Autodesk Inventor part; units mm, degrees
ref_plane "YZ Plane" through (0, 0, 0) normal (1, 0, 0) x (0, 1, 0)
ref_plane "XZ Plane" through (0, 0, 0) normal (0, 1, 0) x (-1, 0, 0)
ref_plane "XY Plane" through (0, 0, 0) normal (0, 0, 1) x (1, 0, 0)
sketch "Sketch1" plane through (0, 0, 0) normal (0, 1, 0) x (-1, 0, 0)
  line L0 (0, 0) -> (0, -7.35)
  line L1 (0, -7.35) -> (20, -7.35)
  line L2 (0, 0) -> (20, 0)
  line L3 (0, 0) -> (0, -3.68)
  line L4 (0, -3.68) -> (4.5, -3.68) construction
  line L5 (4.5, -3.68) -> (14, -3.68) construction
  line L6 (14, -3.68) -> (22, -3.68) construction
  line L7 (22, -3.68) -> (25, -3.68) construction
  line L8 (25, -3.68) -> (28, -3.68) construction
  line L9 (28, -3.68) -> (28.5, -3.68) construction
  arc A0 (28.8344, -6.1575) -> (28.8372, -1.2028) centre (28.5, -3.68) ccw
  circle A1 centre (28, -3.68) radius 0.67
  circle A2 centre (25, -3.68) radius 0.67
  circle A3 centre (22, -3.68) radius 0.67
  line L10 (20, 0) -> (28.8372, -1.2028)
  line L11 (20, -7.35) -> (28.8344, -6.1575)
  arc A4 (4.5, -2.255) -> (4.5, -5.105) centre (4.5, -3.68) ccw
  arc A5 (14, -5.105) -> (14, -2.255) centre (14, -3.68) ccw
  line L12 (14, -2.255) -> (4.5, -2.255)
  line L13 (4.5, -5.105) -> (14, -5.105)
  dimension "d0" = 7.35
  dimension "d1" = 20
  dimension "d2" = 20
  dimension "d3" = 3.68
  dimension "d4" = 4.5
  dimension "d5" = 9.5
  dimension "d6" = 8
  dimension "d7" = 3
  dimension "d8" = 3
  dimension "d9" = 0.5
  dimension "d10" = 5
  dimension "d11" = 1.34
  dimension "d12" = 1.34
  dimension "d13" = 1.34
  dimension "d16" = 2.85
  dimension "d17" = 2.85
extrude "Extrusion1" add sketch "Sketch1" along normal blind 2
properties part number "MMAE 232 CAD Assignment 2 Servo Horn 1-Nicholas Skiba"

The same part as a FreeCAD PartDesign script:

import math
import FreeCAD as App
import Part
import Sketcher
from FreeCAD import Vector
Q = App.Units.Quantity

doc = App.newDocument("Part")
params = doc.addObject("Spreadsheet::Sheet", "Params")
for row, (alias, value) in enumerate([
    ("sketch1_radius", "2.5 mm"),
    ("sketch1_diameter", "1.34 mm"),
    ("sketch1_width", "20 mm"),
    ("sketch1_width2", "9.5 mm"),
    ("sketch1_height", "7.35 mm"),
    ("pad1_length", "2 mm"),
], start=1):
    params.set(f"A{row}", alias)
    params.set(f"B{row}", "=" + value)
    params.setAlias(f"B{row}", alias)

body = doc.addObject("PartDesign::Body", "Body")

sketch1 = body.newObject("Sketcher::SketchObject", "Sketch")
sketch1.AttachmentSupport = (doc.getObject("XZ_Plane"), [""])
sketch1.MapMode = "FlatFace"
sketch1.addGeometry(Part.LineSegment(Vector(-20, 0, 0), Vector(0, 0, 0)), False)
sketch1.addGeometry(Part.LineSegment(Vector(0, 0, 0), Vector(0, -7.35, 0)), False)
sketch1.addGeometry(Part.LineSegment(Vector(0, -7.35, 0), Vector(-20, -7.35, 0)), False)
sketch1.addGeometry(Part.LineSegment(Vector(-20, -7.35, 0), Vector(-28.8344, -6.1575, 0)), False)
sketch1.addGeometry(Part.ArcOfCircle(Part.Circle(Vector(-28.5, -3.68, 0), Vector(0, 0, 1), 2.499966), math.radians(97.751541), math.radians(262.312972)), False)
sketch1.addGeometry(Part.LineSegment(Vector(-28.8372, -1.2028, 0), Vector(-20, 0, 0)), False)
sketch1.addGeometry(Part.ArcOfCircle(Part.Circle(Vector(-4.5, -3.68, 0), Vector(0, 0, 1), 1.425), math.radians(-90), math.radians(90)), False)
sketch1.addGeometry(Part.LineSegment(Vector(-4.5, -2.255, 0), Vector(-14, -2.255, 0)), False)
sketch1.addGeometry(Part.ArcOfCircle(Part.Circle(Vector(-14, -3.68, 0), Vector(0, 0, 1), 1.425), math.radians(90), math.radians(270)), False)
sketch1.addGeometry(Part.LineSegment(Vector(-14, -5.105, 0), Vector(-4.5, -5.105, 0)), False)
sketch1.addGeometry(Part.Circle(Vector(-22, -3.68, 0), Vector(0, 0, 1), 0.67), False)
sketch1.addGeometry(Part.Circle(Vector(-25, -3.68, 0), Vector(0, 0, 1), 0.67), False)
sketch1.addGeometry(Part.Circle(Vector(-28, -3.68, 0), Vector(0, 0, 1), 0.67), False)
sketch1.addConstraint(Sketcher.Constraint("Coincident", 0, 2, 1, 1))
sketch1.addConstraint(Sketcher.Constraint("Coincident", 1, 2, 2, 1))
sketch1.addConstraint(Sketcher.Constraint("Coincident", 2, 2, 3, 1))
sketch1.addConstraint(Sketcher.Constraint("Tangent", 3, 2, 4, 2))
sketch1.addConstraint(Sketcher.Constraint("Tangent", 4, 1, 5, 1))
sketch1.addConstraint(Sketcher.Constraint("Coincident", 5, 2, 0, 1))
sketch1.addConstraint(Sketcher.Constraint("Tangent", 6, 2, 7, 1))
sketch1.addConstraint(Sketcher.Constraint("Tangent", 7, 2, 8, 1))
sketch1.addConstraint(Sketcher.Constraint("Tangent", 8, 2, 9, 1))
sketch1.addConstraint(Sketcher.Constraint("Tangent", 9, 2, 6, 1))
sketch1.addConstraint(Sketcher.Constraint("Horizontal", 0))
sketch1.addConstraint(Sketcher.Constraint("Vertical", 1))
sketch1.addConstraint(Sketcher.Constraint("Horizontal", 2))
sketch1.addConstraint(Sketcher.Constraint("Horizontal", 7))
sketch1.addConstraint(Sketcher.Constraint("Horizontal", 9))
sketch1.addConstraint(Sketcher.Constraint("Coincident", 0, 2, -1, 1))
sketch1.addConstraint(Sketcher.Constraint("Equal", 10, 11))
sketch1.addConstraint(Sketcher.Constraint("Equal", 11, 12))
sketch1.addConstraint(Sketcher.Constraint("Horizontal", 4, 3, 6, 3))
sketch1.addConstraint(Sketcher.Constraint("Horizontal", 8, 3, 10, 3))
sketch1.addConstraint(Sketcher.Constraint("Horizontal", 10, 3, 11, 3))
sketch1.addConstraint(Sketcher.Constraint("Horizontal", 11, 3, 12, 3))
sketch1.addConstraint(Sketcher.Constraint("Vertical", 2, 2, 5, 2))
sketch1.addConstraint(Sketcher.Constraint("Radius", 4, Q("2.5 mm")))
sketch1.addConstraint(Sketcher.Constraint("Diameter", 10, Q("1.34 mm")))
sketch1.addConstraint(Sketcher.Constraint("DistanceX", 0, 1, 0, 2, Q("20 mm")))
sketch1.addConstraint(Sketcher.Constraint("DistanceX", 7, 2, 7, 1, Q("9.5 mm")))
sketch1.addConstraint(Sketcher.Constraint("Radius", 6, Q("1.425 mm")))
sketch1.addConstraint(Sketcher.Constraint("DistanceX", 10, 3, 8, 3, Q("8 mm")))
sketch1.addConstraint(Sketcher.Constraint("DistanceX", 11, 3, 10, 3, Q("3 mm")))
sketch1.addConstraint(Sketcher.Constraint("DistanceX", 12, 3, 11, 3, Q("3 mm")))
sketch1.addConstraint(Sketcher.Constraint("DistanceX", 11, 3, 2, 2, Q("5 mm")))
sketch1.addConstraint(Sketcher.Constraint("DistanceY", 1, 2, 1, 1, Q("7.35 mm")))
sketch1.addConstraint(Sketcher.Constraint("DistanceX", 4, 3, 12, 3, Q("0.5 mm")))
sketch1.addConstraint(Sketcher.Constraint("DistanceY", 4, 3, -1, 1, Q("3.68 mm")))
sketch1.setExpression("Constraints[23]", "Params.sketch1_radius")
sketch1.setExpression("Constraints[24]", "Params.sketch1_diameter")
sketch1.setExpression("Constraints[25]", "Params.sketch1_width")
sketch1.setExpression("Constraints[26]", "Params.sketch1_width2")
sketch1.setExpression("Constraints[32]", "Params.sketch1_height")
pad1 = body.newObject("PartDesign::Pad", "Pad")
pad1.Profile = sketch1
pad1.setExpression("Length", "Params.pad1_length")
pad1.Reversed = True

doc.recompute()
